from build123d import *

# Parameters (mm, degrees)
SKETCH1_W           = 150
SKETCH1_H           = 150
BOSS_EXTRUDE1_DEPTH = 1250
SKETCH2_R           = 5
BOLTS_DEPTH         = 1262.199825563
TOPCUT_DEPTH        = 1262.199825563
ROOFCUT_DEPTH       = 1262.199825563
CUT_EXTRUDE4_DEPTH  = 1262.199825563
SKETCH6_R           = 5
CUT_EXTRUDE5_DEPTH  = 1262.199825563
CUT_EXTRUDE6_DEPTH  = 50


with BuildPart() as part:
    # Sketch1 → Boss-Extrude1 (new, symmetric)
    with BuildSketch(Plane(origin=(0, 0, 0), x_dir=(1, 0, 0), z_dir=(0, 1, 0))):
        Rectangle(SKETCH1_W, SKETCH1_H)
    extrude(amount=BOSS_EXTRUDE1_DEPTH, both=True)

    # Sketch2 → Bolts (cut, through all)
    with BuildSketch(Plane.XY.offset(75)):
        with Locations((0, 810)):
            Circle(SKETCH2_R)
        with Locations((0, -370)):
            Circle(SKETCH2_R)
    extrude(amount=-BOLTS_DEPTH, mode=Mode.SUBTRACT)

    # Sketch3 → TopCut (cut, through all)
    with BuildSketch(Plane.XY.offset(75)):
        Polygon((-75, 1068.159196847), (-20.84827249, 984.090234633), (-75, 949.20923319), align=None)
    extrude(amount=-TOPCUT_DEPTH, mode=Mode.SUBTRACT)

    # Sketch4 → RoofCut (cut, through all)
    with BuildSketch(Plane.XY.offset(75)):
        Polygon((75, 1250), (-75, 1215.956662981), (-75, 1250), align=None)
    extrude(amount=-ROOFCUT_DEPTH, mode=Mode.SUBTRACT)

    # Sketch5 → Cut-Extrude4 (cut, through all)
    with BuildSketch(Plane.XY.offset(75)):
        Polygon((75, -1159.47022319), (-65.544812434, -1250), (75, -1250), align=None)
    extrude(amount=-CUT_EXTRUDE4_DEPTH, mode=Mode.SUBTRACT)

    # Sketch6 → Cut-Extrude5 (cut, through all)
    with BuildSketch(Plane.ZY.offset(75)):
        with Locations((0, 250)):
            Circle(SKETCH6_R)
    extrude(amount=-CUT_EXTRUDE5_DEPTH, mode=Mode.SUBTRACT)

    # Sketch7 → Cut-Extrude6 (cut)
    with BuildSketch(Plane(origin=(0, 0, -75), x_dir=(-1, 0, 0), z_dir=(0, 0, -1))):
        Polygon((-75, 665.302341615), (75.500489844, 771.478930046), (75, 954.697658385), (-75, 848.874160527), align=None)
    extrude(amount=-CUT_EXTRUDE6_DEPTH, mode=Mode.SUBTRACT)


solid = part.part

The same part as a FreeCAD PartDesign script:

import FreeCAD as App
import Part
import Sketcher


def add_polygon(sketch, points):
    """Adds a closed chain of lines whose ends are joined by coincident constraints."""
    first, n = sketch.GeometryCount, len(points)
    for a, b in zip(points, points[1:] + points[:1]):
        sketch.addGeometry(Part.LineSegment(App.Vector(*a, 0), App.Vector(*b, 0)), False)
    for i in range(n):
        sketch.addConstraint(Sketcher.Constraint("Coincident", first + i, 2, first + (i + 1) % n, 1))

doc = App.newDocument("Part")
params = doc.addObject("Spreadsheet::Sheet", "Params")
for row, (alias, value) in enumerate([
    ("sketch1_width", "150 mm"),
    ("pad1_length", "2500 mm"),
    ("sketch2_diameter", "10 mm"),
    ("sketch3_length", "100 mm"),
    ("sketch4_width", "150 mm"),
    ("sketch6_diameter", "10 mm"),
    ("pocket6_length", "50 mm"),
], start=1):
    params.set(f"A{row}", alias)
    params.set(f"B{row}", "=" + value)
    params.setAlias(f"B{row}", alias)

body = doc.addObject("PartDesign::Body", "Body")

sketch1 = body.newObject("Sketcher::SketchObject", "Sketch")
sketch1.AttachmentSupport = (doc.getObject("XZ_Plane"), [""])
sketch1.MapMode = "FlatFace"
add_polygon(sketch1, [(-75, -75), (-75, 75), (75, 75), (75, -75)])
sketch1.addConstraint([
    Sketcher.Constraint("Vertical", 0),
    Sketcher.Constraint("Horizontal", 1),
    Sketcher.Constraint("Vertical", 2),
    Sketcher.Constraint("Horizontal", 3),
    Sketcher.Constraint("Symmetric", 0, 2, 2, 2, -1, 1),
    Sketcher.Constraint("Equal", 3, 0),
    Sketcher.Constraint("DistanceX", 1, 1, 1, 2, 150.0),
])
sketch1.setExpression("Constraints[10]", "Params.sketch1_width")
pad1 = body.newObject("PartDesign::Pad", "Pad")
pad1.Profile = sketch1
pad1.setExpression("Length", "Params.pad1_length")
pad1.Midplane = True

sketch2 = body.newObject("Sketcher::SketchObject", "Sketch001")
sketch2.AttachmentSupport = (doc.getObject("XY_Plane"), [""])
sketch2.MapMode = "FlatFace"
sketch2.AttachmentOffset = App.Placement(App.Vector(0, 0, 75), App.Rotation())
sketch2.addGeometry([
    Part.Circle(App.Vector(0, 810, 0), App.Vector(0, 0, 1), 5),
    Part.Circle(App.Vector(0, -370, 0), App.Vector(0, 0, 1), 5),
], False)
sketch2.addConstraint([
    Sketcher.Constraint("Equal", 0, 1),
    Sketcher.Constraint("PointOnObject", 0, 3, -2),
    Sketcher.Constraint("PointOnObject", 1, 3, -2),
    Sketcher.Constraint("Diameter", 0, 10.0),
    Sketcher.Constraint("DistanceY", -1, 1, 0, 3, 810.0),
    Sketcher.Constraint("DistanceY", 1, 3, -1, 1, 370.0),
])
sketch2.setExpression("Constraints[3]", "Params.sketch2_diameter")
pocket1 = body.newObject("PartDesign::Pocket", "Pocket")
pocket1.Profile = sketch2
pocket1.Type = "ThroughAll"

sketch3 = body.newObject("Sketcher::SketchObject", "Sketch002")
sketch3.AttachmentSupport = (doc.getObject("XY_Plane"), [""])
sketch3.MapMode = "FlatFace"
sketch3.AttachmentOffset = App.Placement(App.Vector(0, 0, 75), App.Rotation())
add_polygon(sketch3, [(-21, 984), (-75, 1068), (-75, 949)])
sketch3.addConstraint([
    Sketcher.Constraint("Vertical", 1),
    Sketcher.Constraint("Perpendicular", 0, 2),
    Sketcher.Constraint("Distance", 0, 100.0),
    Sketcher.Constraint("DistanceX", 0, 2, -1, 1, 75.0),
    Sketcher.Constraint("DistanceY", 1, 2, 2, 2, 34.881001),
    Sketcher.Constraint("DistanceY", -1, 1, 0, 2, 1068.159197),
])
sketch3.setExpression("Constraints[5]", "Params.sketch3_length")
pocket2 = body.newObject("PartDesign::Pocket", "Pocket001")
pocket2.Profile = sketch3
pocket2.Type = "ThroughAll"

sketch4 = body.newObject("Sketcher::SketchObject", "Sketch003")
sketch4.AttachmentSupport = (doc.getObject("XY_Plane"), [""])
sketch4.MapMode = "FlatFace"
sketch4.AttachmentOffset = App.Placement(App.Vector(0, 0, 75), App.Rotation())
add_polygon(sketch4, [(-75, 1216), (75, 1250), (-75, 1250)])
sketch4.addConstraint([
    Sketcher.Constraint("Horizontal", 1),
    Sketcher.Constraint("Vertical", 2),
    Sketcher.Constraint("DistanceX", 1, 2, 1, 1, 150.0),
    Sketcher.Constraint("DistanceX", -1, 1, 0, 2, 75.0),
    Sketcher.Constraint("DistanceY", -1, 1, 0, 2, 1250.0),
    Sketcher.Constraint("DistanceY", 2, 2, 2, 1, 34.043337),
])
sketch4.setExpression("Constraints[5]", "Params.sketch4_width")
pocket3 = body.newObject("PartDesign::Pocket", "Pocket002")
pocket3.Profile = sketch4
pocket3.Type = "ThroughAll"

sketch5 = body.newObject("Sketcher::SketchObject", "Sketch004")
sketch5.AttachmentSupport = (doc.getObject("XY_Plane"), [""])
sketch5.MapMode = "FlatFace"
sketch5.AttachmentOffset = App.Placement(App.Vector(0, 0, 75), App.Rotation())
add_polygon(sketch5, [(75, -1159), (-66, -1250), (75, -1250)])
sketch5.addConstraint([
    Sketcher.Constraint("Horizontal", 1),
    Sketcher.Constraint("Vertical", 2),
    Sketcher.Constraint("DistanceY", 0, 2, -1, 1, 1250.0),
    Sketcher.Constraint("DistanceX", -1, 1, 1, 2, 75.0),
    Sketcher.Constraint("DistanceX", 1, 1, 1, 2, 140.544812),
    Sketcher.Constraint("DistanceY", 2, 1, 2, 2, 90.529777),
])
pocket4 = body.newObject("PartDesign::Pocket", "Pocket003")
pocket4.Profile = sketch5
pocket4.Type = "ThroughAll"

sketch6 = body.newObject("Sketcher::SketchObject", "Sketch005")
sketch6.AttachmentSupport = (doc.getObject("YZ_Plane"), [""])
sketch6.MapMode = "FlatFace"
sketch6.AttachmentOffset = App.Placement(App.Vector(0, 0, -75), App.Rotation())
sketch6.addGeometry(Part.Circle(App.Vector(250, 0, 0), App.Vector(0, 0, 1), 5), False)
sketch6.addConstraint([
    Sketcher.Constraint("PointOnObject", 0, 3, -1),
    Sketcher.Constraint("Diameter", 0, 10.0),
    Sketcher.Constraint("DistanceX", -1, 1, 0, 3, 250.0),
])
sketch6.setExpression("Constraints[1]", "Params.sketch6_diameter")
pocket5 = body.newObject("PartDesign::Pocket", "Pocket004")
pocket5.Profile = sketch6
pocket5.Type = "ThroughAll"
pocket5.Reversed = True

sketch7 = body.newObject("Sketcher::SketchObject", "Sketch006")
sketch7.AttachmentSupport = (doc.getObject("XY_Plane"), [""])
sketch7.MapMode = "FlatFace"
sketch7.AttachmentOffset = App.Placement(App.Vector(0, 0, -75), App.Rotation())
add_polygon(sketch7, [(75, 665), (-76, 771), (-75, 955), (75, 849)])
sketch7.addConstraint([
    Sketcher.Constraint("Vertical", 3),
    Sketcher.Constraint("Parallel", 0, 2),
    Sketcher.Constraint("DistanceX", 1, 2, -1, 1, 75.0),
    Sketcher.Constraint("DistanceX", -1, 1, 2, 2, 75.0),
    Sketcher.Constraint("DistanceY", 3, 2, 3, 1, 183.571819),
    Sketcher.Constraint("Distance", 1, 183.219412),
    Sketcher.Constraint("Distance", 2, 183.571819),
    Sketcher.Constraint("DistanceY", -1, 1, 0, 2, 771.47893),
])
pocket6 = body.newObject("PartDesign::Pocket", "Pocket005")
pocket6.Profile = sketch7
pocket6.setExpression("Length", "Params.pocket6_length")
pocket6.Reversed = True

doc.recompute()
